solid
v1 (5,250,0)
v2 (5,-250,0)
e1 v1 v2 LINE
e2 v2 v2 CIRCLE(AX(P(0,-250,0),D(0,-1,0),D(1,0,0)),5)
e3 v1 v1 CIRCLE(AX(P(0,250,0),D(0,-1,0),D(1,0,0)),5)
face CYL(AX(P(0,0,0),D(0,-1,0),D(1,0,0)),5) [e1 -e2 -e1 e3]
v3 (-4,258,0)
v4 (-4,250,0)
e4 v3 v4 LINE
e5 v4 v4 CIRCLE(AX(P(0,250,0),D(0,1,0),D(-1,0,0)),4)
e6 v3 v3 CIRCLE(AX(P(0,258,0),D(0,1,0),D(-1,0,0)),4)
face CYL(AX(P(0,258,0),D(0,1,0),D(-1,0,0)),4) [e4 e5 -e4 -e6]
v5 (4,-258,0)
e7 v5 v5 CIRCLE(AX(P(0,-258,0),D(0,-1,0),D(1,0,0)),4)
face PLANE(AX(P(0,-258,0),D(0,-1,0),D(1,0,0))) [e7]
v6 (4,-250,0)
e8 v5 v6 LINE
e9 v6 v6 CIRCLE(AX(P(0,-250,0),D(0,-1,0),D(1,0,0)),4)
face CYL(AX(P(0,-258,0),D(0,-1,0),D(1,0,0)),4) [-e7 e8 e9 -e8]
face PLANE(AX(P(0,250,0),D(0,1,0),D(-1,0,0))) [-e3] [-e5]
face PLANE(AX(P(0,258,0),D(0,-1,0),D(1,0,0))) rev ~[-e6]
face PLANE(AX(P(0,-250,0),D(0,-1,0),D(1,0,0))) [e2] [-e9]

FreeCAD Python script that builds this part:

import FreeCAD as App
import Part
import Sketcher

doc = App.newDocument("Part")
body = doc.addObject("PartDesign::Body", "Body")

sketch1 = body.newObject("Sketcher::SketchObject", "Sketch")
sketch1.AttachmentSupport = (doc.getObject("XZ_Plane"), [""])
sketch1.MapMode = "FlatFace"
sketch1.addGeometry(Part.Circle(App.Vector(0, 0, 0), App.Vector(0, 0, 1), 5), False)
sketch1.addConstraint([
    Sketcher.Constraint("Coincident", 0, 3, -1, 1),
    Sketcher.Constraint("Diameter", 0, 10.0),
])
pad1 = body.newObject("PartDesign::Pad", "Pad")
pad1.Profile = sketch1
pad1.Length = 516
pad1.Midplane = True

sketch2 = body.newObject("Sketcher::SketchObject", "Sketch001")
sketch2.AttachmentSupport = (doc.getObject("XZ_Plane"), [""])
sketch2.MapMode = "FlatFace"
sketch2.AttachmentOffset = App.Placement(App.Vector(0, 0, 258), App.Rotation())
sketch2.addGeometry([
    Part.Circle(App.Vector(0, 0, 0), App.Vector(0, 0, 1), 9),
    Part.Circle(App.Vector(0, 0, 0), App.Vector(0, 0, 1), 4),
], False)
sketch2.addConstraint([
    Sketcher.Constraint("Coincident", 0, 3, -1, 1),
    Sketcher.Constraint("Coincident", 1, 3, -1, 1),
    Sketcher.Constraint("Diameter", 0, 18.0),
    Sketcher.Constraint("Diameter", 1, 8.0),
])
pocket1 = body.newObject("PartDesign::Pocket", "Pocket")
pocket1.Profile = sketch2
pocket1.Length = 8

sketch3 = body.newObject("Sketcher::SketchObject", "Sketch002")
sketch3.AttachmentSupport = (doc.getObject("XZ_Plane"), [""])
sketch3.MapMode = "FlatFace"
sketch3.AttachmentOffset = App.Placement(App.Vector(0, 0, -258), App.Rotation())
sketch3.addGeometry([
    Part.Circle(App.Vector(0, 0, 0), App.Vector(0, 0, 1), 5),
    Part.Circle(App.Vector(0, 0, 0), App.Vector(0, 0, 1), 4),
], False)
sketch3.addConstraint([
    Sketcher.Constraint("Coincident", 0, 3, -1, 1),
    Sketcher.Constraint("Coincident", 1, 3, -1, 1),
    Sketcher.Constraint("Diameter", 0, 10.0),
    Sketcher.Constraint("Diameter", 1, 8.0),
])
pocket2 = body.newObject("PartDesign::Pocket", "Pocket001")
pocket2.Profile = sketch3
pocket2.Length = 8
pocket2.Reversed = True

doc.recompute()
